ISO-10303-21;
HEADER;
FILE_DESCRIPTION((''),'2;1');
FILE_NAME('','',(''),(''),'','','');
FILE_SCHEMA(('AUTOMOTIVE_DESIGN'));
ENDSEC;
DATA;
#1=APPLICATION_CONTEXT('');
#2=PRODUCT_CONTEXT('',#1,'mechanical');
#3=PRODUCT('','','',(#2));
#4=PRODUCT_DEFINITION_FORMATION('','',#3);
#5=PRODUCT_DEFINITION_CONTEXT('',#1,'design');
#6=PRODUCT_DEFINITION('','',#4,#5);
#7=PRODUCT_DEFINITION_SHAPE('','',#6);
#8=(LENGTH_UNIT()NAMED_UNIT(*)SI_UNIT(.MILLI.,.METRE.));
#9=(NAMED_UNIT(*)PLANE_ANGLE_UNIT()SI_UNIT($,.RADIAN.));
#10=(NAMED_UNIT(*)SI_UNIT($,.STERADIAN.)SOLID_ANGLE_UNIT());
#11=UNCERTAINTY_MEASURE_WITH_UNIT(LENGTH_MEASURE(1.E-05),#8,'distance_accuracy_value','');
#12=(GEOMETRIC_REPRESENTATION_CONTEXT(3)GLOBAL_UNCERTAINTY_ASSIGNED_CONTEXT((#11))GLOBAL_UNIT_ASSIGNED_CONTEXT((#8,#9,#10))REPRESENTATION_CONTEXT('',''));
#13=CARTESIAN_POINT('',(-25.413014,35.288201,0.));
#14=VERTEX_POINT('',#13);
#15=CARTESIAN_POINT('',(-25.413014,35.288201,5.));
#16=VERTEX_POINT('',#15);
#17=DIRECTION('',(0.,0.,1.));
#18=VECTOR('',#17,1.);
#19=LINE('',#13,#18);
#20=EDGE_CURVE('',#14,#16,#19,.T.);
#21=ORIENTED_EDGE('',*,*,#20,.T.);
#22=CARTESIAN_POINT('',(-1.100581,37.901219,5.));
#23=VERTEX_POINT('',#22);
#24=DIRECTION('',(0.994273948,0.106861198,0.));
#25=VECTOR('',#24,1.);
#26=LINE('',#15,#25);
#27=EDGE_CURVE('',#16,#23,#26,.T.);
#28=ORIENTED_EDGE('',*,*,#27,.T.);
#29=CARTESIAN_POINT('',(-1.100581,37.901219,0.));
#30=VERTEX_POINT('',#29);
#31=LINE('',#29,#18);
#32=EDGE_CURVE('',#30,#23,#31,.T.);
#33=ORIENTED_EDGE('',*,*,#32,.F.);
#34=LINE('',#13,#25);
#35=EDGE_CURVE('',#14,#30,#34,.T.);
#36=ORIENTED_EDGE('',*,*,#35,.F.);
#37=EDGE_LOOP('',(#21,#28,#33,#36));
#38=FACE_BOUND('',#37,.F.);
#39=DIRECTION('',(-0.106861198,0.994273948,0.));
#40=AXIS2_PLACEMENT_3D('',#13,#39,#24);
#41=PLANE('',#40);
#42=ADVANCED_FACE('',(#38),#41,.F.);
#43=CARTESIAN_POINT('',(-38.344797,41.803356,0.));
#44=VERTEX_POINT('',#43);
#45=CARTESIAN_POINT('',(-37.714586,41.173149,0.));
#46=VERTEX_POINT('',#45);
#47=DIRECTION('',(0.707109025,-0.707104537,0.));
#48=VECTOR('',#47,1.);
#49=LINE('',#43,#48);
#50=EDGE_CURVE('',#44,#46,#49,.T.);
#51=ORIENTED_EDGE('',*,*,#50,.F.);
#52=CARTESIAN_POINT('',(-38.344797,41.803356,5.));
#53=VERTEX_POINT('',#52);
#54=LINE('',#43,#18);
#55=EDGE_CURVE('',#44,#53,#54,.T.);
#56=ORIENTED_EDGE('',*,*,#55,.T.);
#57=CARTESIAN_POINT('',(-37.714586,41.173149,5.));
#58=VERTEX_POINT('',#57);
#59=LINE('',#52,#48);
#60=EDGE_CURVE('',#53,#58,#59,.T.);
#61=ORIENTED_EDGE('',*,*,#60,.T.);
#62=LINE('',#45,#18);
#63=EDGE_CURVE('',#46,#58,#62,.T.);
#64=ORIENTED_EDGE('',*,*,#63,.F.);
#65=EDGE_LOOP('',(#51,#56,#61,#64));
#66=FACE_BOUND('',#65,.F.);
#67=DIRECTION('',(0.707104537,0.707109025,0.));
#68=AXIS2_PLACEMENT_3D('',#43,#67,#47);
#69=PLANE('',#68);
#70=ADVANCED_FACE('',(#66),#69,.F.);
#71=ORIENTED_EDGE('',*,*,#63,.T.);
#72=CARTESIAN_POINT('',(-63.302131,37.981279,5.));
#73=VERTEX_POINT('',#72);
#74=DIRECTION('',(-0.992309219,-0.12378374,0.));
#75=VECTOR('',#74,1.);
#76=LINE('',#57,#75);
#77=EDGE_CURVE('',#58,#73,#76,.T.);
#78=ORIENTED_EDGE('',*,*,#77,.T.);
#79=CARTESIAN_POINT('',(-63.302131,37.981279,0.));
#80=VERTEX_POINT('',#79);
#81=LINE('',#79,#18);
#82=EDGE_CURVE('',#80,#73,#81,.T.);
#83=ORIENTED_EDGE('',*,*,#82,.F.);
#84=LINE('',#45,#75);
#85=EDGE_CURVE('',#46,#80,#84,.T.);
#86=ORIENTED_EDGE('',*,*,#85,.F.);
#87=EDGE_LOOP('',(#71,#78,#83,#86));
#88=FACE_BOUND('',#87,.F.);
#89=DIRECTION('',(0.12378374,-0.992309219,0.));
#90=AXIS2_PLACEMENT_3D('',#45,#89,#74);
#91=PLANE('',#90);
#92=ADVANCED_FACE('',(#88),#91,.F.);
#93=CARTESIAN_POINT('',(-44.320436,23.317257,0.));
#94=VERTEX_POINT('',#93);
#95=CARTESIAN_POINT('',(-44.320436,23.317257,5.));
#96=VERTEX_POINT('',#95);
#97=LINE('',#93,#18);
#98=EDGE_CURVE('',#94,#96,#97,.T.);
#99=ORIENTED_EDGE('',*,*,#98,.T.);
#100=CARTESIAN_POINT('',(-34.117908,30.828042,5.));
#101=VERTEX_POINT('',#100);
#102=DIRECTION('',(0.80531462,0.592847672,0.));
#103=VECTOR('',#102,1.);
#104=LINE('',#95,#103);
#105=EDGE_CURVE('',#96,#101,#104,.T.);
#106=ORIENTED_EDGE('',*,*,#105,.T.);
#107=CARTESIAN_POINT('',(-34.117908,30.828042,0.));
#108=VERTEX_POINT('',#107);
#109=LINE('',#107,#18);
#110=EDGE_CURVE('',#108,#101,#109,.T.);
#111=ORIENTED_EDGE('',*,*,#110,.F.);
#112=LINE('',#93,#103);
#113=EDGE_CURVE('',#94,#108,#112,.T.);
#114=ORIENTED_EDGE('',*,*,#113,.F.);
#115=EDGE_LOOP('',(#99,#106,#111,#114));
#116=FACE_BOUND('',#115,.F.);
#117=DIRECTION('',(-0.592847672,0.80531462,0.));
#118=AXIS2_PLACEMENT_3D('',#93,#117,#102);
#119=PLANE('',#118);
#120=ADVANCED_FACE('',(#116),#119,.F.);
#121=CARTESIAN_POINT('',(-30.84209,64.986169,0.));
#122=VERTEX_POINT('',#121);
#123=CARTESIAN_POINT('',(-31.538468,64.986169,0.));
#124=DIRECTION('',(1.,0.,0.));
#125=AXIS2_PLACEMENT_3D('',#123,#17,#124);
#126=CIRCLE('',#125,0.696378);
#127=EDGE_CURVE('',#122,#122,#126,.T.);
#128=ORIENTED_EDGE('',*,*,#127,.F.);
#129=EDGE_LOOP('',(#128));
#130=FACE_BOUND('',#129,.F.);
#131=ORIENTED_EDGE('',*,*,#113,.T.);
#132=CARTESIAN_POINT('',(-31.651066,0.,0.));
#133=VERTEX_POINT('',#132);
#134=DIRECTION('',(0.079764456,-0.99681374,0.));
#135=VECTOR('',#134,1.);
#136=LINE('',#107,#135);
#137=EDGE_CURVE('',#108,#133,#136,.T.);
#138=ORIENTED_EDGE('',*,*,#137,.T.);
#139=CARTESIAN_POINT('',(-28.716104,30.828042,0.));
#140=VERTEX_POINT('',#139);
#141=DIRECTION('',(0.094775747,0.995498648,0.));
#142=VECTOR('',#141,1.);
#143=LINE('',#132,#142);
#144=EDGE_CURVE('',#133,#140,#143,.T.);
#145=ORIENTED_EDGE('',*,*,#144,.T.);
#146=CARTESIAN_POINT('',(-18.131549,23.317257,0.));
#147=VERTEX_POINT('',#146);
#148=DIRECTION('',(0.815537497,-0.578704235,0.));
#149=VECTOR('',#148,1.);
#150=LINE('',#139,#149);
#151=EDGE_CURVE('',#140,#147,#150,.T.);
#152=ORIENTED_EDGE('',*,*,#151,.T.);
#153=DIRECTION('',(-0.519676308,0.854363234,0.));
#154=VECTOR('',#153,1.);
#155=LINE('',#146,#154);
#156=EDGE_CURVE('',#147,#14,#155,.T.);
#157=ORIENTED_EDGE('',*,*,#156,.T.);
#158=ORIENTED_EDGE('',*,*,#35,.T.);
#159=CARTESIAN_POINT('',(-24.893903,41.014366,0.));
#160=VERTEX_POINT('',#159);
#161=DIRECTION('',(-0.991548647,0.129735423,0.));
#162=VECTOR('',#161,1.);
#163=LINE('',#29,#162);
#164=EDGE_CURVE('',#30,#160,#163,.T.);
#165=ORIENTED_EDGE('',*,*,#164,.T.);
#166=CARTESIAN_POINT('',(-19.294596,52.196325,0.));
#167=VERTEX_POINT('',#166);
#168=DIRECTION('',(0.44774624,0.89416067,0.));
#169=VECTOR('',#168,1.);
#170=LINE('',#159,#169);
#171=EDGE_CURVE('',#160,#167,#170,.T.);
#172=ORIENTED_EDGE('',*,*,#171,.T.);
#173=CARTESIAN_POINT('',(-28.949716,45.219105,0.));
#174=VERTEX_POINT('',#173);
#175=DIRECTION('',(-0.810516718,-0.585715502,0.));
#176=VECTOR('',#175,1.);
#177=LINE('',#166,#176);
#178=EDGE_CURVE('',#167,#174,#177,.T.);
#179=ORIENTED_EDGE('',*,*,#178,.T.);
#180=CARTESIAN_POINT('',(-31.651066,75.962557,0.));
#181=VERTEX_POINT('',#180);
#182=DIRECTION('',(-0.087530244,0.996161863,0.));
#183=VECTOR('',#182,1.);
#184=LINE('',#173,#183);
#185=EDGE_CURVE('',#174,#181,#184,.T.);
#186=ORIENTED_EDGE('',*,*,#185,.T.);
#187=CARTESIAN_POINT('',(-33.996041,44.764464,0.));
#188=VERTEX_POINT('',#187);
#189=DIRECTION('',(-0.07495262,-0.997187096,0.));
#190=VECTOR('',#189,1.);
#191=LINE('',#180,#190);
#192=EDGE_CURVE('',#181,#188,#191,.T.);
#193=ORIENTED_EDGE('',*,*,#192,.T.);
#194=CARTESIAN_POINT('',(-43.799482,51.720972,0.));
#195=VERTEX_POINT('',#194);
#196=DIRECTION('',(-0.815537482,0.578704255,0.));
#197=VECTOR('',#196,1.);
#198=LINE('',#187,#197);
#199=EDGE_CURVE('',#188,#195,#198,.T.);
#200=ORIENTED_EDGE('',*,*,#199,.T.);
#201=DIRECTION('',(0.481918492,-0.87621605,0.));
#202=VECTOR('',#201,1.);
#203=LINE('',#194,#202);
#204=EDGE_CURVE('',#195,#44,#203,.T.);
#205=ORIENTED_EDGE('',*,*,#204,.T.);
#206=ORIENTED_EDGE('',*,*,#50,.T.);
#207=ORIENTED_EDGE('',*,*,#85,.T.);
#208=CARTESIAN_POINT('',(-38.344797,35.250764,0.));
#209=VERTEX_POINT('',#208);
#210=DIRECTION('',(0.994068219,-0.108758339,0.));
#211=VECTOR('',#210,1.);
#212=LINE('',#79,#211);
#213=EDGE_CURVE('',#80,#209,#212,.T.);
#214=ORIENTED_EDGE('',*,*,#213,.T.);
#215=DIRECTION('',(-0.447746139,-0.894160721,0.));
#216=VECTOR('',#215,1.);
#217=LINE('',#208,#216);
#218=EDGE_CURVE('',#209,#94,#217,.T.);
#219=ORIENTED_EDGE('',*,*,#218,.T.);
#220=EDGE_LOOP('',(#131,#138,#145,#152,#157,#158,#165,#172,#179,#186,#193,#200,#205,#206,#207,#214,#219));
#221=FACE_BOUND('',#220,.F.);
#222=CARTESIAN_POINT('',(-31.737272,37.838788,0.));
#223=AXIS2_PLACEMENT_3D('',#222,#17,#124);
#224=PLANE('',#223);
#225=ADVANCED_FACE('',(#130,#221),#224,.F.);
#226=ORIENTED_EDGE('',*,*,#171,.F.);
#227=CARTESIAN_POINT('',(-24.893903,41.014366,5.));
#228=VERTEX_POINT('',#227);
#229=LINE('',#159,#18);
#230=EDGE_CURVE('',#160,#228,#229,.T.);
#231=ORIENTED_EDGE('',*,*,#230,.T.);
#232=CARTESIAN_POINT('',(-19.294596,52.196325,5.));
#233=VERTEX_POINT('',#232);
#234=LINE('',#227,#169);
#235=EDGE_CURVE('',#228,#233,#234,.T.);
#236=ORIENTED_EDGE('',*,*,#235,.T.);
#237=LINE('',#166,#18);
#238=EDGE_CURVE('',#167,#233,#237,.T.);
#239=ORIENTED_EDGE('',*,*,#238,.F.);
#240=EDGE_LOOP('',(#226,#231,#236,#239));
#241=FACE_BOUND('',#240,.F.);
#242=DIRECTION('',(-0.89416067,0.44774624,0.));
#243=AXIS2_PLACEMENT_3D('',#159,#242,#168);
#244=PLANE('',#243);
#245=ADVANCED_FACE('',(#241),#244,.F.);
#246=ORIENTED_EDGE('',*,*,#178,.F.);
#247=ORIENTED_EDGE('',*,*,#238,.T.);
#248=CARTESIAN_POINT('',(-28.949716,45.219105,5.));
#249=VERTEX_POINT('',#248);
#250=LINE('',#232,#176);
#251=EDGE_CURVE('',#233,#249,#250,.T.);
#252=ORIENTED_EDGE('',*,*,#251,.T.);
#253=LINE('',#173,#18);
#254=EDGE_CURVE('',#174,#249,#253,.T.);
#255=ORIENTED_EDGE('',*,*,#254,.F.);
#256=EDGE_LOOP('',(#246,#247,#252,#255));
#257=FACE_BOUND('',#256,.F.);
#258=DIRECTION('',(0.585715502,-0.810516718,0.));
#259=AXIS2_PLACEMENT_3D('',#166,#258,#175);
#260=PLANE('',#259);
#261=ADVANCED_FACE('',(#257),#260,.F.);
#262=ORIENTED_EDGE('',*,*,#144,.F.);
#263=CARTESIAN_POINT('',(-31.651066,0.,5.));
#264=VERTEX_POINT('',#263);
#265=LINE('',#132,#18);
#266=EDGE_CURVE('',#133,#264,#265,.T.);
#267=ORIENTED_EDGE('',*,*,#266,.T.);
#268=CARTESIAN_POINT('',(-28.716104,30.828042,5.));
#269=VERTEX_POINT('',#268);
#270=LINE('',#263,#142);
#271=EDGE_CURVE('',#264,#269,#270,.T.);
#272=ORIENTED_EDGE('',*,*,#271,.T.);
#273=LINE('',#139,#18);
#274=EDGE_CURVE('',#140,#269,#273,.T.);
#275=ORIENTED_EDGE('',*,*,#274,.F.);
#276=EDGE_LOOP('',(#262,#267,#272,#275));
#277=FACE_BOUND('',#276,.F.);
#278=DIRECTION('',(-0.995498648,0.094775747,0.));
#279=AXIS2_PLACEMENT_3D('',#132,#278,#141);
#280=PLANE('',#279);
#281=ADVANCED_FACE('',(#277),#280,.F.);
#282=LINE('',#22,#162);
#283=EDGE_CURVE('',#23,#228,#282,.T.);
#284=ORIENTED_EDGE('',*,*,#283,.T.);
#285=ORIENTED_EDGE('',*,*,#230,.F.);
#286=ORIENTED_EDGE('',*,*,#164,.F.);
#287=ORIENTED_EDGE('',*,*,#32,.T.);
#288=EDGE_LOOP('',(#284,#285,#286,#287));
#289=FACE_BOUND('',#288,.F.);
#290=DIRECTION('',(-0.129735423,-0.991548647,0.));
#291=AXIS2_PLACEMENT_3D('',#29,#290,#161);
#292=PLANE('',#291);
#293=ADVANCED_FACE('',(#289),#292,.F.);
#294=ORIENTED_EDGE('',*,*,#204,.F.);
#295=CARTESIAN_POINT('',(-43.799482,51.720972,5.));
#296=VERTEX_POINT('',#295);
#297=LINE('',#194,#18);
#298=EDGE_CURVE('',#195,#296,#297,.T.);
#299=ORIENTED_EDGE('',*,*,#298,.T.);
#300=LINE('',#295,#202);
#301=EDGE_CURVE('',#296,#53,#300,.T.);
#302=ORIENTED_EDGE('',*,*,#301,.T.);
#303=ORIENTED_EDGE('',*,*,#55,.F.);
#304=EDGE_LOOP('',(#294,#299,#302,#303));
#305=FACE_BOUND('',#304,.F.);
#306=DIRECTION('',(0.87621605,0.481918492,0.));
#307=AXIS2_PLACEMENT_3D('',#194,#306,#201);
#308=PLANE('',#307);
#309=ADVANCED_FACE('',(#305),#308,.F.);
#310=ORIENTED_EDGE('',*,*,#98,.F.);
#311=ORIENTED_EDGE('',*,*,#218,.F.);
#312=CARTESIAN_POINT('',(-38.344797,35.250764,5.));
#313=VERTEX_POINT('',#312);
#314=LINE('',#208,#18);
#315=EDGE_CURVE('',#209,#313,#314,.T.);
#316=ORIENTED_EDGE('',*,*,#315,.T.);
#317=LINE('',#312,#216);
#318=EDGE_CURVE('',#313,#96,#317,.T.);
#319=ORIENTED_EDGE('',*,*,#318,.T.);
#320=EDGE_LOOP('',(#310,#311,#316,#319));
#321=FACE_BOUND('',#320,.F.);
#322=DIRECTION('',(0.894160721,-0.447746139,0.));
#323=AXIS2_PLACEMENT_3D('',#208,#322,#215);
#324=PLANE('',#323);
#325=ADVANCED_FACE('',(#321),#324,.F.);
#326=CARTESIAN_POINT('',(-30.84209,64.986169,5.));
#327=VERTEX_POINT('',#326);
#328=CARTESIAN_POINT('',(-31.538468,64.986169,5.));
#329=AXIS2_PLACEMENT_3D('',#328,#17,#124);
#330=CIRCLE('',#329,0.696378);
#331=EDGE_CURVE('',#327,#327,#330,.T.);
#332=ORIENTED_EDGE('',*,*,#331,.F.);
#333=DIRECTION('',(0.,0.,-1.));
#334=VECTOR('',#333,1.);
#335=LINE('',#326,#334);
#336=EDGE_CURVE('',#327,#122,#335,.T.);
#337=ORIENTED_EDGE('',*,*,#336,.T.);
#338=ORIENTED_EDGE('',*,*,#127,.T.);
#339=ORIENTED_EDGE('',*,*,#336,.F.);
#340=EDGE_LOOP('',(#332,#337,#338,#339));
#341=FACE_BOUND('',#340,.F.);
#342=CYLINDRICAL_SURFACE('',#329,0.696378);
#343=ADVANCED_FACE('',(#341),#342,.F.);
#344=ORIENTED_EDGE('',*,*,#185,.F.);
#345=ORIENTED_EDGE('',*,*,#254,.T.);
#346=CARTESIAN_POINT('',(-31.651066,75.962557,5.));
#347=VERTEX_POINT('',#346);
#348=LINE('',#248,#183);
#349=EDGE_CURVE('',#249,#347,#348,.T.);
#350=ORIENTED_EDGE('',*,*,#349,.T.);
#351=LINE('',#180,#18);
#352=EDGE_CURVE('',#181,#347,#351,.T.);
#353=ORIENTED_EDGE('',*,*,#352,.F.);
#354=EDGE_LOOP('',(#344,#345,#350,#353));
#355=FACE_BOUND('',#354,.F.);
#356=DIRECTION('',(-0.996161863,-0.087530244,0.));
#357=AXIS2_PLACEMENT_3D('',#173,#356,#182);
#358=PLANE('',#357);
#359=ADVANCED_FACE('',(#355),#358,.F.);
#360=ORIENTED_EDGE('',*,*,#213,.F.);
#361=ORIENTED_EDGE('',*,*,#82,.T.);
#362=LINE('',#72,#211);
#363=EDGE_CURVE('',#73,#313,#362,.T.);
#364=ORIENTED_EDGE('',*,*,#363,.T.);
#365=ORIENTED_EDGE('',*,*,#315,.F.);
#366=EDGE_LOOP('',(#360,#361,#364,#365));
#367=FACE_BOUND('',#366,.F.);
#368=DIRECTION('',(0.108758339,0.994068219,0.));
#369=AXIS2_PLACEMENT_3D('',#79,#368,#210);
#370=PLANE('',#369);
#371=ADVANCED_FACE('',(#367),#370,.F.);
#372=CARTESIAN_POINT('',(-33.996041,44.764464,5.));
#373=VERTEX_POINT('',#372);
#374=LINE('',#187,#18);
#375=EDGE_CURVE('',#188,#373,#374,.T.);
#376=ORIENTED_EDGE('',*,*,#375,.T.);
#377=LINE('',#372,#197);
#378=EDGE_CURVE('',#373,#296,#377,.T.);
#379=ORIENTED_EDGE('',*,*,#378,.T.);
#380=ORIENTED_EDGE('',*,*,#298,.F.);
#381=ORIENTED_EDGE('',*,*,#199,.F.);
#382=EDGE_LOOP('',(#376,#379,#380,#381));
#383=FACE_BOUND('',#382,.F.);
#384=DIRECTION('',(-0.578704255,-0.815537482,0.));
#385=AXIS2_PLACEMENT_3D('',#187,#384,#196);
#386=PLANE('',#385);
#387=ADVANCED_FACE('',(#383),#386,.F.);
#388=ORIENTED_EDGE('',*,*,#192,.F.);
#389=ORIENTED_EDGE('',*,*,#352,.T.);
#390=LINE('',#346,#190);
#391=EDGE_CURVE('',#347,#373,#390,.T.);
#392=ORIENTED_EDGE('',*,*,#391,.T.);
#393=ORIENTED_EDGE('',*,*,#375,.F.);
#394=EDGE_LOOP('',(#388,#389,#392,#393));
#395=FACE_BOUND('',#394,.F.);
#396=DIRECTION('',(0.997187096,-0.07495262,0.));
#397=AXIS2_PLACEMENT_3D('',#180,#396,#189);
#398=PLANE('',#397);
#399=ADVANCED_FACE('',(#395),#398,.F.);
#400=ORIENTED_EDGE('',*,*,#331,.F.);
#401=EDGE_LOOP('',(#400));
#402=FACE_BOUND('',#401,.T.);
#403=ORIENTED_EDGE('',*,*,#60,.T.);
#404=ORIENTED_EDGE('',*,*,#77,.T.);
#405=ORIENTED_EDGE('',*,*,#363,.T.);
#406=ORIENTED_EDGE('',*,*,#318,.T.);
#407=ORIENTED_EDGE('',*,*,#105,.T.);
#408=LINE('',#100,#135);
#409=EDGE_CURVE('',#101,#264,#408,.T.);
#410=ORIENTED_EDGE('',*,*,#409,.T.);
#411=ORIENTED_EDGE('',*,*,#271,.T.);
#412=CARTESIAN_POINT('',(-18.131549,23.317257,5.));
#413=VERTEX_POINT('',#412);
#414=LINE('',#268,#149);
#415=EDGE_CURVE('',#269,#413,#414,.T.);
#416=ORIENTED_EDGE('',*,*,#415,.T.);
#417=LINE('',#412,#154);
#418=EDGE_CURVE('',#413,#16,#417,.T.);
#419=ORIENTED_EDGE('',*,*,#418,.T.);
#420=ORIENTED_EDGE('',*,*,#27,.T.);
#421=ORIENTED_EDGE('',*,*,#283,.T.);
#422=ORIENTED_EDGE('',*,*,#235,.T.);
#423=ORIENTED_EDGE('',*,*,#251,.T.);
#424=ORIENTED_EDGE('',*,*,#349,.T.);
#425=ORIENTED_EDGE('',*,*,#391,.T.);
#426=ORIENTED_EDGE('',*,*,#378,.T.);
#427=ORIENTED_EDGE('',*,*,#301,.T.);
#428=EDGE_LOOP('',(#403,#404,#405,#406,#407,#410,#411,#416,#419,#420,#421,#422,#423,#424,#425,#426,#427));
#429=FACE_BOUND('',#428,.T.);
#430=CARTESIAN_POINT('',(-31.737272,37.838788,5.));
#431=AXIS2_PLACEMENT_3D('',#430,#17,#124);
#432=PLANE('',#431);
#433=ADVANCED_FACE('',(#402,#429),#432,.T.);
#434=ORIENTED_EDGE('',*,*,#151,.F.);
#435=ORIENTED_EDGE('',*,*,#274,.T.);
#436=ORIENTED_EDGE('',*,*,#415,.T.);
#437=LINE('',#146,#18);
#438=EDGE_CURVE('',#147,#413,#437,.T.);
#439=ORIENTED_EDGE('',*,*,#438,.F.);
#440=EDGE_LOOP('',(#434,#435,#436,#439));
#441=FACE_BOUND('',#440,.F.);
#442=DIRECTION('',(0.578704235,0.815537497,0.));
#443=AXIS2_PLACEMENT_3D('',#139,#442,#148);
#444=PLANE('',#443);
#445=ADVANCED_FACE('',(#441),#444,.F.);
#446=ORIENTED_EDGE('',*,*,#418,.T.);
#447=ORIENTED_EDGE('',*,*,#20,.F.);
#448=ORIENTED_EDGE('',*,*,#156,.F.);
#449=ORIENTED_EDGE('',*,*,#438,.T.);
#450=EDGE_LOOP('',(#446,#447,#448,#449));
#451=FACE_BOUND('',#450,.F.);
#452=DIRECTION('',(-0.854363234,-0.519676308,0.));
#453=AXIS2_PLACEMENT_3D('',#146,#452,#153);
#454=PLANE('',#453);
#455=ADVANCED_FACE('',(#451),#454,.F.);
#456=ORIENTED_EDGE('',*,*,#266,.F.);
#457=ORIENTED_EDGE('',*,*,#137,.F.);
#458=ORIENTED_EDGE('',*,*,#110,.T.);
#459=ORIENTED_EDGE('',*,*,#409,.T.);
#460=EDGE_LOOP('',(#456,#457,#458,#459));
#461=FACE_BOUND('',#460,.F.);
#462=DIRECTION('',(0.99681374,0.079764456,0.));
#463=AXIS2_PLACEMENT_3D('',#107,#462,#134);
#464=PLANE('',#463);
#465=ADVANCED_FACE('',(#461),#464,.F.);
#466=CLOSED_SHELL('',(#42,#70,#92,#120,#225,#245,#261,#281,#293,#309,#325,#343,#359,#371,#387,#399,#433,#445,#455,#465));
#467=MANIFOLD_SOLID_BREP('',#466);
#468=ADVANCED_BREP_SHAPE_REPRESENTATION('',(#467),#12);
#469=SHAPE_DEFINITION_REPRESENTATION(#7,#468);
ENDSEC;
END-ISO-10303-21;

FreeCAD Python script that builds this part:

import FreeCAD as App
import Part
import Sketcher
from FreeCAD import Vector


def add_polygon(sketch, points):
    """Adds a closed chain of lines whose ends are joined by coincident constraints."""
    first, n = sketch.GeometryCount, len(points)
    for a, b in zip(points, points[1:] + points[:1]):
        sketch.addGeometry(Part.LineSegment(App.Vector(*a, 0), App.Vector(*b, 0)), False)
    for i in range(n):
        sketch.addConstraint(Sketcher.Constraint("Coincident", first + i, 2, first + (i + 1) % n, 1))

doc = App.newDocument("Part")
body = doc.addObject("PartDesign::Body", "Body")

sketch1 = body.newObject("Sketcher::SketchObject", "Sketch")
sketch1.AttachmentSupport = (doc.getObject("XY_Plane"), [""])
sketch1.MapMode = "FlatFace"
add_polygon(sketch1, [(-28.9, 45.2), (-31.7, 76), (-34, 44.8), (-43.8, 51.7), (-38.3, 41.8), (-37.7, 41.2), (-63.3, 38), (-38.3, 35.3), (-44.3, 23.3), (-34.1, 30.8), (-31.7, 0), (-28.7, 30.8), (-18.1, 23.3), (-25.4, 35.3), (-1.1, 37.9), (-24.9, 41), (-19.3, 52.2)])
sketch1.addConstraint(Sketcher.Constraint("PointOnObject", 9, 2, -1))
sketch1.addConstraint(Sketcher.Constraint("Parallel", 2, 11))
sketch1.addConstraint(Sketcher.Constraint("Parallel", 7, 15))
sketch1.addConstraint(Sketcher.Constraint("Horizontal", 8, 2, 10, 2))
sketch1.addConstraint(Sketcher.Constraint("Horizontal", 7, 2, 11, 2))
sketch1.addConstraint(Sketcher.Constraint("Vertical", 3, 2, 6, 2))
sketch1.addConstraint(Sketcher.Constraint("Vertical", 0, 2, 9, 2))
sketch1.addConstraint(Sketcher.Constraint("DistanceY", -1, 1, 12, 2, 35.288201))
sketch1.addConstraint(Sketcher.Constraint("DistanceY", 3, 2, 0, 2, 34.159201))
sketch1.addConstraint(Sketcher.Constraint("DistanceY", 6, 2, 1, 2, 9.5137))
sketch1.addConstraint(Sketcher.Constraint("DistanceY", 7, 2, 3, 2, 18.486099))
sketch1.addConstraint(Sketcher.Constraint("DistanceX", 10, 2, 14, 2, 3.822201))
sketch1.addConstraint(Sketcher.Constraint("DistanceX", 3, 2, 15, 2, 19.050201))
sketch1.addConstraint(Sketcher.Constraint("DistanceX", 16, 2, 12, 2, 3.536702))
sketch1.addConstraint(Sketcher.Constraint("Distance", 4, 0.89125))
sketch1.addConstraint(Sketcher.Constraint("Distance", 5, 25.785858))
sketch1.addConstraint(Sketcher.Constraint("Distance", 6, 25.106259))
sketch1.addConstraint(Sketcher.Constraint("Distance", 12, 14.011539))
sketch1.addConstraint(Sketcher.Constraint("Distance", 13, 24.452449))
sketch1.addConstraint(Sketcher.Constraint("Distance", 14, 23.996122))
sketch1.addConstraint(Sketcher.Constraint("DistanceX", 1, 2, -1, 1, 33.996041))
sketch1.addConstraint(Sketcher.Constraint("DistanceX", 2, 2, -1, 1, 43.799482))
sketch1.addConstraint(Sketcher.Constraint("DistanceY", -1, 1, 4, 2, 41.173149))
sketch1.addConstraint(Sketcher.Constraint("DistanceX", 5, 2, -1, 1, 63.302131))
sketch1.addConstraint(Sketcher.Constraint("DistanceY", -1, 1, 5, 2, 37.981279))
sketch1.addConstraint(Sketcher.Constraint("DistanceY", -1, 1, 8, 2, 30.828042))
sketch1.addConstraint(Sketcher.Constraint("DistanceX", 11, 2, -1, 1, 18.131549))
sketch1.addConstraint(Sketcher.Constraint("DistanceX", 13, 2, -1, 1, 1.100581))
sketch1.addConstraint(Sketcher.Constraint("DistanceY", -1, 1, 13, 2, 37.901219))
sketch1.addConstraint(Sketcher.Constraint("DistanceY", 1, 2, 2, 2, 6.956508))
sketch1.addConstraint(Sketcher.Constraint("DistanceX", 3, 2, 0, 2, 6.693731))
sketch1.addConstraint(Sketcher.Constraint("DistanceX", 7, 2, 6, 2, 5.975639))
sketch1.addConstraint(Sketcher.Constraint("DistanceX", 6, 2, 8, 2, 4.226889))
sketch1.addConstraint(Sketcher.Constraint("DistanceY", 1, 2, 16, 2, 0.454641))
pad1 = body.newObject("PartDesign::Pad", "Pad")
pad1.Profile = sketch1
pad1.Length = 5

sketch2 = body.newObject("Sketcher::SketchObject", "Sketch001")
sketch2.AttachmentSupport = (doc.getObject("XY_Plane"), [""])
sketch2.MapMode = "FlatFace"
sketch2.AttachmentOffset = App.Placement(Vector(0, 0, 5), App.Rotation())
sketch2.addGeometry(Part.Circle(Vector(-31.5, 65, 0), Vector(0, 0, 1), 0.7), False)
sketch2.addConstraint(Sketcher.Constraint("Diameter", 0, 1.392756))
sketch2.addConstraint(Sketcher.Constraint("DistanceX", 0, 3, -1, 1, 31.538468))
sketch2.addConstraint(Sketcher.Constraint("DistanceY", -1, 1, 0, 3, 64.986169))
pocket1 = body.newObject("PartDesign::Pocket", "Pocket")
pocket1.Profile = sketch2
pocket1.Length = 5

doc.recompute()
